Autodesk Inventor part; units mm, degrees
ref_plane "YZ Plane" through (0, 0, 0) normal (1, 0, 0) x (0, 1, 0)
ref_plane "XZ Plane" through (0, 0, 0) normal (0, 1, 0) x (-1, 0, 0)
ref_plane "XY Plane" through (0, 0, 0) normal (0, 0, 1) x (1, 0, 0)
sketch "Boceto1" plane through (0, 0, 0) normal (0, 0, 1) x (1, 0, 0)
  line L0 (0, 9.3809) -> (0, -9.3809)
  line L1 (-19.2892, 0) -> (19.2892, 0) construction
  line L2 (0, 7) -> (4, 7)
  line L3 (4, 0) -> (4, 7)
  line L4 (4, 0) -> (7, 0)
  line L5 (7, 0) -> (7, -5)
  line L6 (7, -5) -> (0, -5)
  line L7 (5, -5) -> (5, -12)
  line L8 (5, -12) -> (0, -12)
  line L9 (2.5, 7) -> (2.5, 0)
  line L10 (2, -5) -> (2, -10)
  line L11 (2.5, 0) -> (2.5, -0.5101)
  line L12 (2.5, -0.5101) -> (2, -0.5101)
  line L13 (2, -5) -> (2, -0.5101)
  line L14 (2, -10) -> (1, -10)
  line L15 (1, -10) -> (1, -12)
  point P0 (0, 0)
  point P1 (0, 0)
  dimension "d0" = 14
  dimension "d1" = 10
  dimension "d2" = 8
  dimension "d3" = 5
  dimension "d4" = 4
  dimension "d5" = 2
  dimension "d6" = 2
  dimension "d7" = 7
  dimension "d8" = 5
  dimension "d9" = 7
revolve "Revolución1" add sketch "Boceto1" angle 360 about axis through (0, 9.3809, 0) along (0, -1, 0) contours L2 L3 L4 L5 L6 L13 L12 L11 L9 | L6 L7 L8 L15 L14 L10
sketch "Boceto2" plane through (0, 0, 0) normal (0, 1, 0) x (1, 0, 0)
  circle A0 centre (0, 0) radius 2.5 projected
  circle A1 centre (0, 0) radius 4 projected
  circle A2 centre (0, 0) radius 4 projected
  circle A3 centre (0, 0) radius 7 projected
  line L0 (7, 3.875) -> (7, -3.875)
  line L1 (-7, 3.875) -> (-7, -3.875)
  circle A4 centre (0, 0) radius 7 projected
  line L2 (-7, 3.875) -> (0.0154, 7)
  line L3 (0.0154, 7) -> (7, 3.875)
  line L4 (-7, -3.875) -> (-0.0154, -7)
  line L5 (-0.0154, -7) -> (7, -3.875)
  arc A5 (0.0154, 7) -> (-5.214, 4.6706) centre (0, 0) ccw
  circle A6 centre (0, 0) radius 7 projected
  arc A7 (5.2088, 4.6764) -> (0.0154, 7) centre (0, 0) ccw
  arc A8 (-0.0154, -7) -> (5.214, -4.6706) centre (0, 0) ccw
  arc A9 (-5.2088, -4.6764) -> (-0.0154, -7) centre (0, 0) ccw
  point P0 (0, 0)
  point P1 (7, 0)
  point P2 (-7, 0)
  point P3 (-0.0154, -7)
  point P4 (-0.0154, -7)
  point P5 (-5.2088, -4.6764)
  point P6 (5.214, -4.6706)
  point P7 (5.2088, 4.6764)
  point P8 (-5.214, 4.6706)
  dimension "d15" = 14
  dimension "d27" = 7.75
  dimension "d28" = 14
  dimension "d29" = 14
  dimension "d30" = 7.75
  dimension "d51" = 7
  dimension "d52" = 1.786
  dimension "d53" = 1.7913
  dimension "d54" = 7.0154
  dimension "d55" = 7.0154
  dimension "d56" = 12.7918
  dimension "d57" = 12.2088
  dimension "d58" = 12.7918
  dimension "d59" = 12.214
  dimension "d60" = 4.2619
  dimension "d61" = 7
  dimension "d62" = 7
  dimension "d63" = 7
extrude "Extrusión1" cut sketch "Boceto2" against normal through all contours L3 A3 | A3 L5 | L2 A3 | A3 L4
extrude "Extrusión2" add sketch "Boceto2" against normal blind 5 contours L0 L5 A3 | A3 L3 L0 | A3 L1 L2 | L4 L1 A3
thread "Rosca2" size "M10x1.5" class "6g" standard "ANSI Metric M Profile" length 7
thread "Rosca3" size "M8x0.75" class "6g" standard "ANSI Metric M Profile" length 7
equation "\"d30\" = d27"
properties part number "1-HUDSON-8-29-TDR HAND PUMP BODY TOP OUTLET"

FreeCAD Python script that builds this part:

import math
import FreeCAD as App
import Part
import Sketcher
from FreeCAD import Vector
Q = App.Units.Quantity

doc = App.newDocument("Part")
body = doc.addObject("PartDesign::Body", "Body")

# Sketch on XY plane
sketch1 = doc.addObject("Sketcher::SketchObject", "Sketch")
body.addObject(sketch1)
sketch1.AttachmentSupport = (doc.XY_Plane, [""])
sketch1.MapMode = "FlatFace"
sketch1.addGeometry([
    Part.LineSegment(Vector(4, 7, 0), Vector(2.5, 7, 0)),  # 0
    Part.LineSegment(Vector(2.5, 7, 0), Vector(2.5, -0.5, 0)),  # 1
    Part.LineSegment(Vector(2.5, -0.5, 0), Vector(2, -0.5, 0)),  # 2
    Part.LineSegment(Vector(2, -0.5, 0), Vector(2, -10, 0)),  # 3
    Part.LineSegment(Vector(2, -10, 0), Vector(1, -10, 0)),  # 4
    Part.LineSegment(Vector(1, -10, 0), Vector(1, -12, 0)),  # 5
    Part.LineSegment(Vector(1, -12, 0), Vector(5, -12, 0)),  # 6
    Part.LineSegment(Vector(5, -12, 0), Vector(5, -5, 0)),  # 7
    Part.LineSegment(Vector(5, -5, 0), Vector(7, -5, 0)),  # 8
    Part.LineSegment(Vector(7, -5, 0), Vector(7, 0, 0)),  # 9
    Part.LineSegment(Vector(7, 0, 0), Vector(4, 0, 0)),  # 10
    Part.LineSegment(Vector(4, 0, 0), Vector(4, 7, 0)),  # 11
], False)
sketch1.addConstraint([
    Sketcher.Constraint("Coincident", 0, 2, 1, 1),
    Sketcher.Constraint("Coincident", 1, 2, 2, 1),
    Sketcher.Constraint("Coincident", 2, 2, 3, 1),
    Sketcher.Constraint("Coincident", 3, 2, 4, 1),
    Sketcher.Constraint("Coincident", 4, 2, 5, 1),
    Sketcher.Constraint("Coincident", 5, 2, 6, 1),
    Sketcher.Constraint("Coincident", 6, 2, 7, 1),
    Sketcher.Constraint("Coincident", 7, 2, 8, 1),
    Sketcher.Constraint("Coincident", 8, 2, 9, 1),
    Sketcher.Constraint("Coincident", 9, 2, 10, 1),
    Sketcher.Constraint("Coincident", 10, 2, 11, 1),
    Sketcher.Constraint("Coincident", 11, 2, 0, 1),
    Sketcher.Constraint("Horizontal", 0),
    Sketcher.Constraint("Vertical", 1),
    Sketcher.Constraint("Horizontal", 2),
    Sketcher.Constraint("Vertical", 3),
    Sketcher.Constraint("Horizontal", 4),
    Sketcher.Constraint("Vertical", 5),
    Sketcher.Constraint("Horizontal", 6),
    Sketcher.Constraint("Vertical", 7),
    Sketcher.Constraint("Horizontal", 8),
    Sketcher.Constraint("Vertical", 9),
    Sketcher.Constraint("Horizontal", 10),
    Sketcher.Constraint("Vertical", 11),
    Sketcher.Constraint("PointOnObject", 9, 2, -1),
    Sketcher.Constraint("Equal", 8, 5),
    Sketcher.Constraint("Equal", 7, 11),
    Sketcher.Constraint("DistanceX", 6, 1, 6, 2, 4.0),
    Sketcher.Constraint("DistanceX", 8, 1, 8, 2, 2.0),
    Sketcher.Constraint("DistanceY", 7, 1, 7, 2, 7.0),
    Sketcher.Constraint("DistanceY", 9, 1, 9, 2, 5.0),
    Sketcher.Constraint("DistanceX", -1, 1, 2, 2, 2.0),
    Sketcher.Constraint("DistanceX", -1, 1, 6, 2, 5.0),
    Sketcher.Constraint("DistanceX", -1, 1, 10, 2, 4.0),
    Sketcher.Constraint("DistanceX", 0, 2, 0, 1, 1.5),
    Sketcher.Constraint("DistanceY", 1, 2, 1, 1, 7.51),
])
revolution = doc.addObject("PartDesign::Revolution", "Revolution")
body.addObject(revolution)
revolution.Profile = sketch1
revolution.ReferenceAxis = (sketch1, ["V_Axis"])
revolution.Angle = 360

# Sketch on XZ plane
sketch2 = doc.addObject("Sketcher::SketchObject", "Sketch001")
body.addObject(sketch2)
sketch2.AttachmentSupport = (doc.XZ_Plane, [""])
sketch2.MapMode = "FlatFace"
sketch2.addGeometry([
    Part.LineSegment(Vector(0, -7, 0), Vector(5, -5, 0)),  # 0
    Part.ArcOfCircle(Part.Circle(Vector(0, 0, 0), Vector(0, 0, 1), 7), math.radians(-90), math.radians(-42)),  # 1
    Part.ArcOfCircle(Part.Circle(Vector(0, 0, 0), Vector(0, 0, 1), 7), math.radians(42), math.radians(90)),  # 2
    Part.LineSegment(Vector(0, 7, 0), Vector(5, 5, 0)),  # 3
    Part.LineSegment(Vector(-5, -5, 0), Vector(0, -7, 0)),  # 4
    Part.ArcOfCircle(Part.Circle(Vector(0, 0, 0), Vector(0, 0, 1), 7), math.radians(-138), math.radians(-90)),  # 5
    Part.ArcOfCircle(Part.Circle(Vector(0, 0, 0), Vector(0, 0, 1), 7), math.radians(90), math.radians(138)),  # 6
    Part.LineSegment(Vector(-5, 5, 0), Vector(0, 7, 0)),  # 7
], False)
sketch2.addConstraint([
    Sketcher.Constraint("Coincident", 0, 1, 1, 1),
    Sketcher.Constraint("Coincident", 1, 2, 0, 2),
    Sketcher.Constraint("Coincident", 2, 1, 3, 2),
    Sketcher.Constraint("Coincident", 3, 1, 2, 2),
    Sketcher.Constraint("Coincident", 4, 1, 5, 1),
    Sketcher.Constraint("Coincident", 5, 2, 4, 2),
    Sketcher.Constraint("Coincident", 6, 1, 7, 2),
    Sketcher.Constraint("Coincident", 7, 1, 6, 2),
    Sketcher.Constraint("Coincident", 1, 3, -1, 1),
    Sketcher.Constraint("Coincident", 2, 3, -1, 1),
    Sketcher.Constraint("Coincident", 5, 3, -1, 1),
    Sketcher.Constraint("Coincident", 6, 3, -1, 1),
    Sketcher.Constraint("Coincident", 5, 2, 0, 1),
    Sketcher.Constraint("Coincident", 6, 1, 3, 1),
    Sketcher.Constraint("Equal", 1, 2),
    Sketcher.Constraint("Parallel", 3, 4),
    Sketcher.Constraint("Parallel", 0, 7),
    Sketcher.Constraint("Equal", 3, 4),
    Sketcher.Constraint("Radius", 1, 7.0),
    Sketcher.Constraint("Angle", 3, Q("-24.0105 deg")),
    Sketcher.Constraint("DistanceX", -1, 1, 2, 1, 5.214),
    Sketcher.Constraint("DistanceY", 1, 2, 2, 1, 9.347),
])
pocket1 = doc.addObject("PartDesign::Pocket", "Pocket")
body.addObject(pocket1)
pocket1.Profile = sketch2
pocket1.Type = "ThroughAll"
pocket1.Reversed = True

# Sketch on XZ plane
sketch3 = doc.addObject("Sketcher::SketchObject", "Sketch002")
body.addObject(sketch3)
sketch3.AttachmentSupport = (doc.XZ_Plane, [""])
sketch3.MapMode = "FlatFace"
sketch3.addGeometry([
    Part.LineSegment(Vector(7, 3.9, 0), Vector(7, 0, 0)),  # 0
    Part.ArcOfCircle(Part.Circle(Vector(0, 0, 0), Vector(0, 0, 1), 7), math.radians(0), math.radians(42)),  # 1
    Part.LineSegment(Vector(5.2, 4.7, 0), Vector(7, 3.9, 0)),  # 2
    Part.ArcOfCircle(Part.Circle(Vector(0, 0, 0), Vector(0, 0, 1), 7), math.radians(-42), math.radians(0)),  # 3
    Part.LineSegment(Vector(7, 0, 0), Vector(7, -3.9, 0)),  # 4
    Part.LineSegment(Vector(7, -3.9, 0), Vector(5.2, -4.7, 0)),  # 5
    Part.ArcOfCircle(Part.Circle(Vector(0, 0, 0), Vector(0, 0, 1), 7), math.radians(180), math.radians(222)),  # 6
    Part.LineSegment(Vector(-5.2, -4.7, 0), Vector(-7, -3.9, 0)),  # 7
    Part.LineSegment(Vector(-7, -3.9, 0), Vector(-7, 0, 0)),  # 8
    Part.LineSegment(Vector(-7, 3.9, 0), Vector(-5.2, 4.7, 0)),  # 9
    Part.ArcOfCircle(Part.Circle(Vector(0, 0, 0), Vector(0, 0, 1), 7), math.radians(138), math.radians(180)),  # 10
    Part.LineSegment(Vector(-7, 0, 0), Vector(-7, 3.9, 0)),  # 11
], False)
sketch3.addConstraint([
    Sketcher.Constraint("Tangent", 0, 2, 1, 1),
    Sketcher.Constraint("Coincident", 1, 2, 2, 1),
    Sketcher.Constraint("Coincident", 2, 2, 0, 1),
    Sketcher.Constraint("Tangent", 3, 2, 4, 1),
    Sketcher.Constraint("Coincident", 4, 2, 5, 1),
    Sketcher.Constraint("Coincident", 5, 2, 3, 1),
    Sketcher.Constraint("Coincident", 6, 2, 7, 1),
    Sketcher.Constraint("Coincident", 7, 2, 8, 1),
    Sketcher.Constraint("Tangent", 8, 2, 6, 1),
    Sketcher.Constraint("Coincident", 9, 2, 10, 1),
    Sketcher.Constraint("Tangent", 10, 2, 11, 1),
    Sketcher.Constraint("Coincident", 11, 2, 9, 1),
    Sketcher.Constraint("Vertical", 0),
    Sketcher.Constraint("Vertical", 4),
    Sketcher.Constraint("Vertical", 8),
    Sketcher.Constraint("Vertical", 11),
    Sketcher.Constraint("Coincident", 1, 3, -1, 1),
    Sketcher.Constraint("Coincident", 3, 3, -1, 1),
    Sketcher.Constraint("Coincident", 6, 3, -1, 1),
    Sketcher.Constraint("Coincident", 10, 3, -1, 1),
    Sketcher.Constraint("Equal", 1, 3),
    Sketcher.Constraint("Equal", 3, 6),
    Sketcher.Constraint("Equal", 6, 10),
    Sketcher.Constraint("Parallel", 2, 7),
    Sketcher.Constraint("Parallel", 5, 9),
    Sketcher.Constraint("Horizontal", 4, 2, 7, 2),
    Sketcher.Constraint("Horizontal", 2, 2, 11, 2),
    Sketcher.Constraint("Equal", 0, 4),
    Sketcher.Constraint("Radius", 1, 7.0),
    Sketcher.Constraint("DistanceY", 4, 2, 2, 2, 7.75),
    Sketcher.Constraint("DistanceX", 1, 2, 0, 2, 1.786),
    Sketcher.Constraint("DistanceX", 5, 2, 4, 2, 1.7912),
])
pad1 = doc.addObject("PartDesign::Pad", "Pad")
body.addObject(pad1)
pad1.Profile = sketch3
pad1.Length = 5

doc.recompute()
